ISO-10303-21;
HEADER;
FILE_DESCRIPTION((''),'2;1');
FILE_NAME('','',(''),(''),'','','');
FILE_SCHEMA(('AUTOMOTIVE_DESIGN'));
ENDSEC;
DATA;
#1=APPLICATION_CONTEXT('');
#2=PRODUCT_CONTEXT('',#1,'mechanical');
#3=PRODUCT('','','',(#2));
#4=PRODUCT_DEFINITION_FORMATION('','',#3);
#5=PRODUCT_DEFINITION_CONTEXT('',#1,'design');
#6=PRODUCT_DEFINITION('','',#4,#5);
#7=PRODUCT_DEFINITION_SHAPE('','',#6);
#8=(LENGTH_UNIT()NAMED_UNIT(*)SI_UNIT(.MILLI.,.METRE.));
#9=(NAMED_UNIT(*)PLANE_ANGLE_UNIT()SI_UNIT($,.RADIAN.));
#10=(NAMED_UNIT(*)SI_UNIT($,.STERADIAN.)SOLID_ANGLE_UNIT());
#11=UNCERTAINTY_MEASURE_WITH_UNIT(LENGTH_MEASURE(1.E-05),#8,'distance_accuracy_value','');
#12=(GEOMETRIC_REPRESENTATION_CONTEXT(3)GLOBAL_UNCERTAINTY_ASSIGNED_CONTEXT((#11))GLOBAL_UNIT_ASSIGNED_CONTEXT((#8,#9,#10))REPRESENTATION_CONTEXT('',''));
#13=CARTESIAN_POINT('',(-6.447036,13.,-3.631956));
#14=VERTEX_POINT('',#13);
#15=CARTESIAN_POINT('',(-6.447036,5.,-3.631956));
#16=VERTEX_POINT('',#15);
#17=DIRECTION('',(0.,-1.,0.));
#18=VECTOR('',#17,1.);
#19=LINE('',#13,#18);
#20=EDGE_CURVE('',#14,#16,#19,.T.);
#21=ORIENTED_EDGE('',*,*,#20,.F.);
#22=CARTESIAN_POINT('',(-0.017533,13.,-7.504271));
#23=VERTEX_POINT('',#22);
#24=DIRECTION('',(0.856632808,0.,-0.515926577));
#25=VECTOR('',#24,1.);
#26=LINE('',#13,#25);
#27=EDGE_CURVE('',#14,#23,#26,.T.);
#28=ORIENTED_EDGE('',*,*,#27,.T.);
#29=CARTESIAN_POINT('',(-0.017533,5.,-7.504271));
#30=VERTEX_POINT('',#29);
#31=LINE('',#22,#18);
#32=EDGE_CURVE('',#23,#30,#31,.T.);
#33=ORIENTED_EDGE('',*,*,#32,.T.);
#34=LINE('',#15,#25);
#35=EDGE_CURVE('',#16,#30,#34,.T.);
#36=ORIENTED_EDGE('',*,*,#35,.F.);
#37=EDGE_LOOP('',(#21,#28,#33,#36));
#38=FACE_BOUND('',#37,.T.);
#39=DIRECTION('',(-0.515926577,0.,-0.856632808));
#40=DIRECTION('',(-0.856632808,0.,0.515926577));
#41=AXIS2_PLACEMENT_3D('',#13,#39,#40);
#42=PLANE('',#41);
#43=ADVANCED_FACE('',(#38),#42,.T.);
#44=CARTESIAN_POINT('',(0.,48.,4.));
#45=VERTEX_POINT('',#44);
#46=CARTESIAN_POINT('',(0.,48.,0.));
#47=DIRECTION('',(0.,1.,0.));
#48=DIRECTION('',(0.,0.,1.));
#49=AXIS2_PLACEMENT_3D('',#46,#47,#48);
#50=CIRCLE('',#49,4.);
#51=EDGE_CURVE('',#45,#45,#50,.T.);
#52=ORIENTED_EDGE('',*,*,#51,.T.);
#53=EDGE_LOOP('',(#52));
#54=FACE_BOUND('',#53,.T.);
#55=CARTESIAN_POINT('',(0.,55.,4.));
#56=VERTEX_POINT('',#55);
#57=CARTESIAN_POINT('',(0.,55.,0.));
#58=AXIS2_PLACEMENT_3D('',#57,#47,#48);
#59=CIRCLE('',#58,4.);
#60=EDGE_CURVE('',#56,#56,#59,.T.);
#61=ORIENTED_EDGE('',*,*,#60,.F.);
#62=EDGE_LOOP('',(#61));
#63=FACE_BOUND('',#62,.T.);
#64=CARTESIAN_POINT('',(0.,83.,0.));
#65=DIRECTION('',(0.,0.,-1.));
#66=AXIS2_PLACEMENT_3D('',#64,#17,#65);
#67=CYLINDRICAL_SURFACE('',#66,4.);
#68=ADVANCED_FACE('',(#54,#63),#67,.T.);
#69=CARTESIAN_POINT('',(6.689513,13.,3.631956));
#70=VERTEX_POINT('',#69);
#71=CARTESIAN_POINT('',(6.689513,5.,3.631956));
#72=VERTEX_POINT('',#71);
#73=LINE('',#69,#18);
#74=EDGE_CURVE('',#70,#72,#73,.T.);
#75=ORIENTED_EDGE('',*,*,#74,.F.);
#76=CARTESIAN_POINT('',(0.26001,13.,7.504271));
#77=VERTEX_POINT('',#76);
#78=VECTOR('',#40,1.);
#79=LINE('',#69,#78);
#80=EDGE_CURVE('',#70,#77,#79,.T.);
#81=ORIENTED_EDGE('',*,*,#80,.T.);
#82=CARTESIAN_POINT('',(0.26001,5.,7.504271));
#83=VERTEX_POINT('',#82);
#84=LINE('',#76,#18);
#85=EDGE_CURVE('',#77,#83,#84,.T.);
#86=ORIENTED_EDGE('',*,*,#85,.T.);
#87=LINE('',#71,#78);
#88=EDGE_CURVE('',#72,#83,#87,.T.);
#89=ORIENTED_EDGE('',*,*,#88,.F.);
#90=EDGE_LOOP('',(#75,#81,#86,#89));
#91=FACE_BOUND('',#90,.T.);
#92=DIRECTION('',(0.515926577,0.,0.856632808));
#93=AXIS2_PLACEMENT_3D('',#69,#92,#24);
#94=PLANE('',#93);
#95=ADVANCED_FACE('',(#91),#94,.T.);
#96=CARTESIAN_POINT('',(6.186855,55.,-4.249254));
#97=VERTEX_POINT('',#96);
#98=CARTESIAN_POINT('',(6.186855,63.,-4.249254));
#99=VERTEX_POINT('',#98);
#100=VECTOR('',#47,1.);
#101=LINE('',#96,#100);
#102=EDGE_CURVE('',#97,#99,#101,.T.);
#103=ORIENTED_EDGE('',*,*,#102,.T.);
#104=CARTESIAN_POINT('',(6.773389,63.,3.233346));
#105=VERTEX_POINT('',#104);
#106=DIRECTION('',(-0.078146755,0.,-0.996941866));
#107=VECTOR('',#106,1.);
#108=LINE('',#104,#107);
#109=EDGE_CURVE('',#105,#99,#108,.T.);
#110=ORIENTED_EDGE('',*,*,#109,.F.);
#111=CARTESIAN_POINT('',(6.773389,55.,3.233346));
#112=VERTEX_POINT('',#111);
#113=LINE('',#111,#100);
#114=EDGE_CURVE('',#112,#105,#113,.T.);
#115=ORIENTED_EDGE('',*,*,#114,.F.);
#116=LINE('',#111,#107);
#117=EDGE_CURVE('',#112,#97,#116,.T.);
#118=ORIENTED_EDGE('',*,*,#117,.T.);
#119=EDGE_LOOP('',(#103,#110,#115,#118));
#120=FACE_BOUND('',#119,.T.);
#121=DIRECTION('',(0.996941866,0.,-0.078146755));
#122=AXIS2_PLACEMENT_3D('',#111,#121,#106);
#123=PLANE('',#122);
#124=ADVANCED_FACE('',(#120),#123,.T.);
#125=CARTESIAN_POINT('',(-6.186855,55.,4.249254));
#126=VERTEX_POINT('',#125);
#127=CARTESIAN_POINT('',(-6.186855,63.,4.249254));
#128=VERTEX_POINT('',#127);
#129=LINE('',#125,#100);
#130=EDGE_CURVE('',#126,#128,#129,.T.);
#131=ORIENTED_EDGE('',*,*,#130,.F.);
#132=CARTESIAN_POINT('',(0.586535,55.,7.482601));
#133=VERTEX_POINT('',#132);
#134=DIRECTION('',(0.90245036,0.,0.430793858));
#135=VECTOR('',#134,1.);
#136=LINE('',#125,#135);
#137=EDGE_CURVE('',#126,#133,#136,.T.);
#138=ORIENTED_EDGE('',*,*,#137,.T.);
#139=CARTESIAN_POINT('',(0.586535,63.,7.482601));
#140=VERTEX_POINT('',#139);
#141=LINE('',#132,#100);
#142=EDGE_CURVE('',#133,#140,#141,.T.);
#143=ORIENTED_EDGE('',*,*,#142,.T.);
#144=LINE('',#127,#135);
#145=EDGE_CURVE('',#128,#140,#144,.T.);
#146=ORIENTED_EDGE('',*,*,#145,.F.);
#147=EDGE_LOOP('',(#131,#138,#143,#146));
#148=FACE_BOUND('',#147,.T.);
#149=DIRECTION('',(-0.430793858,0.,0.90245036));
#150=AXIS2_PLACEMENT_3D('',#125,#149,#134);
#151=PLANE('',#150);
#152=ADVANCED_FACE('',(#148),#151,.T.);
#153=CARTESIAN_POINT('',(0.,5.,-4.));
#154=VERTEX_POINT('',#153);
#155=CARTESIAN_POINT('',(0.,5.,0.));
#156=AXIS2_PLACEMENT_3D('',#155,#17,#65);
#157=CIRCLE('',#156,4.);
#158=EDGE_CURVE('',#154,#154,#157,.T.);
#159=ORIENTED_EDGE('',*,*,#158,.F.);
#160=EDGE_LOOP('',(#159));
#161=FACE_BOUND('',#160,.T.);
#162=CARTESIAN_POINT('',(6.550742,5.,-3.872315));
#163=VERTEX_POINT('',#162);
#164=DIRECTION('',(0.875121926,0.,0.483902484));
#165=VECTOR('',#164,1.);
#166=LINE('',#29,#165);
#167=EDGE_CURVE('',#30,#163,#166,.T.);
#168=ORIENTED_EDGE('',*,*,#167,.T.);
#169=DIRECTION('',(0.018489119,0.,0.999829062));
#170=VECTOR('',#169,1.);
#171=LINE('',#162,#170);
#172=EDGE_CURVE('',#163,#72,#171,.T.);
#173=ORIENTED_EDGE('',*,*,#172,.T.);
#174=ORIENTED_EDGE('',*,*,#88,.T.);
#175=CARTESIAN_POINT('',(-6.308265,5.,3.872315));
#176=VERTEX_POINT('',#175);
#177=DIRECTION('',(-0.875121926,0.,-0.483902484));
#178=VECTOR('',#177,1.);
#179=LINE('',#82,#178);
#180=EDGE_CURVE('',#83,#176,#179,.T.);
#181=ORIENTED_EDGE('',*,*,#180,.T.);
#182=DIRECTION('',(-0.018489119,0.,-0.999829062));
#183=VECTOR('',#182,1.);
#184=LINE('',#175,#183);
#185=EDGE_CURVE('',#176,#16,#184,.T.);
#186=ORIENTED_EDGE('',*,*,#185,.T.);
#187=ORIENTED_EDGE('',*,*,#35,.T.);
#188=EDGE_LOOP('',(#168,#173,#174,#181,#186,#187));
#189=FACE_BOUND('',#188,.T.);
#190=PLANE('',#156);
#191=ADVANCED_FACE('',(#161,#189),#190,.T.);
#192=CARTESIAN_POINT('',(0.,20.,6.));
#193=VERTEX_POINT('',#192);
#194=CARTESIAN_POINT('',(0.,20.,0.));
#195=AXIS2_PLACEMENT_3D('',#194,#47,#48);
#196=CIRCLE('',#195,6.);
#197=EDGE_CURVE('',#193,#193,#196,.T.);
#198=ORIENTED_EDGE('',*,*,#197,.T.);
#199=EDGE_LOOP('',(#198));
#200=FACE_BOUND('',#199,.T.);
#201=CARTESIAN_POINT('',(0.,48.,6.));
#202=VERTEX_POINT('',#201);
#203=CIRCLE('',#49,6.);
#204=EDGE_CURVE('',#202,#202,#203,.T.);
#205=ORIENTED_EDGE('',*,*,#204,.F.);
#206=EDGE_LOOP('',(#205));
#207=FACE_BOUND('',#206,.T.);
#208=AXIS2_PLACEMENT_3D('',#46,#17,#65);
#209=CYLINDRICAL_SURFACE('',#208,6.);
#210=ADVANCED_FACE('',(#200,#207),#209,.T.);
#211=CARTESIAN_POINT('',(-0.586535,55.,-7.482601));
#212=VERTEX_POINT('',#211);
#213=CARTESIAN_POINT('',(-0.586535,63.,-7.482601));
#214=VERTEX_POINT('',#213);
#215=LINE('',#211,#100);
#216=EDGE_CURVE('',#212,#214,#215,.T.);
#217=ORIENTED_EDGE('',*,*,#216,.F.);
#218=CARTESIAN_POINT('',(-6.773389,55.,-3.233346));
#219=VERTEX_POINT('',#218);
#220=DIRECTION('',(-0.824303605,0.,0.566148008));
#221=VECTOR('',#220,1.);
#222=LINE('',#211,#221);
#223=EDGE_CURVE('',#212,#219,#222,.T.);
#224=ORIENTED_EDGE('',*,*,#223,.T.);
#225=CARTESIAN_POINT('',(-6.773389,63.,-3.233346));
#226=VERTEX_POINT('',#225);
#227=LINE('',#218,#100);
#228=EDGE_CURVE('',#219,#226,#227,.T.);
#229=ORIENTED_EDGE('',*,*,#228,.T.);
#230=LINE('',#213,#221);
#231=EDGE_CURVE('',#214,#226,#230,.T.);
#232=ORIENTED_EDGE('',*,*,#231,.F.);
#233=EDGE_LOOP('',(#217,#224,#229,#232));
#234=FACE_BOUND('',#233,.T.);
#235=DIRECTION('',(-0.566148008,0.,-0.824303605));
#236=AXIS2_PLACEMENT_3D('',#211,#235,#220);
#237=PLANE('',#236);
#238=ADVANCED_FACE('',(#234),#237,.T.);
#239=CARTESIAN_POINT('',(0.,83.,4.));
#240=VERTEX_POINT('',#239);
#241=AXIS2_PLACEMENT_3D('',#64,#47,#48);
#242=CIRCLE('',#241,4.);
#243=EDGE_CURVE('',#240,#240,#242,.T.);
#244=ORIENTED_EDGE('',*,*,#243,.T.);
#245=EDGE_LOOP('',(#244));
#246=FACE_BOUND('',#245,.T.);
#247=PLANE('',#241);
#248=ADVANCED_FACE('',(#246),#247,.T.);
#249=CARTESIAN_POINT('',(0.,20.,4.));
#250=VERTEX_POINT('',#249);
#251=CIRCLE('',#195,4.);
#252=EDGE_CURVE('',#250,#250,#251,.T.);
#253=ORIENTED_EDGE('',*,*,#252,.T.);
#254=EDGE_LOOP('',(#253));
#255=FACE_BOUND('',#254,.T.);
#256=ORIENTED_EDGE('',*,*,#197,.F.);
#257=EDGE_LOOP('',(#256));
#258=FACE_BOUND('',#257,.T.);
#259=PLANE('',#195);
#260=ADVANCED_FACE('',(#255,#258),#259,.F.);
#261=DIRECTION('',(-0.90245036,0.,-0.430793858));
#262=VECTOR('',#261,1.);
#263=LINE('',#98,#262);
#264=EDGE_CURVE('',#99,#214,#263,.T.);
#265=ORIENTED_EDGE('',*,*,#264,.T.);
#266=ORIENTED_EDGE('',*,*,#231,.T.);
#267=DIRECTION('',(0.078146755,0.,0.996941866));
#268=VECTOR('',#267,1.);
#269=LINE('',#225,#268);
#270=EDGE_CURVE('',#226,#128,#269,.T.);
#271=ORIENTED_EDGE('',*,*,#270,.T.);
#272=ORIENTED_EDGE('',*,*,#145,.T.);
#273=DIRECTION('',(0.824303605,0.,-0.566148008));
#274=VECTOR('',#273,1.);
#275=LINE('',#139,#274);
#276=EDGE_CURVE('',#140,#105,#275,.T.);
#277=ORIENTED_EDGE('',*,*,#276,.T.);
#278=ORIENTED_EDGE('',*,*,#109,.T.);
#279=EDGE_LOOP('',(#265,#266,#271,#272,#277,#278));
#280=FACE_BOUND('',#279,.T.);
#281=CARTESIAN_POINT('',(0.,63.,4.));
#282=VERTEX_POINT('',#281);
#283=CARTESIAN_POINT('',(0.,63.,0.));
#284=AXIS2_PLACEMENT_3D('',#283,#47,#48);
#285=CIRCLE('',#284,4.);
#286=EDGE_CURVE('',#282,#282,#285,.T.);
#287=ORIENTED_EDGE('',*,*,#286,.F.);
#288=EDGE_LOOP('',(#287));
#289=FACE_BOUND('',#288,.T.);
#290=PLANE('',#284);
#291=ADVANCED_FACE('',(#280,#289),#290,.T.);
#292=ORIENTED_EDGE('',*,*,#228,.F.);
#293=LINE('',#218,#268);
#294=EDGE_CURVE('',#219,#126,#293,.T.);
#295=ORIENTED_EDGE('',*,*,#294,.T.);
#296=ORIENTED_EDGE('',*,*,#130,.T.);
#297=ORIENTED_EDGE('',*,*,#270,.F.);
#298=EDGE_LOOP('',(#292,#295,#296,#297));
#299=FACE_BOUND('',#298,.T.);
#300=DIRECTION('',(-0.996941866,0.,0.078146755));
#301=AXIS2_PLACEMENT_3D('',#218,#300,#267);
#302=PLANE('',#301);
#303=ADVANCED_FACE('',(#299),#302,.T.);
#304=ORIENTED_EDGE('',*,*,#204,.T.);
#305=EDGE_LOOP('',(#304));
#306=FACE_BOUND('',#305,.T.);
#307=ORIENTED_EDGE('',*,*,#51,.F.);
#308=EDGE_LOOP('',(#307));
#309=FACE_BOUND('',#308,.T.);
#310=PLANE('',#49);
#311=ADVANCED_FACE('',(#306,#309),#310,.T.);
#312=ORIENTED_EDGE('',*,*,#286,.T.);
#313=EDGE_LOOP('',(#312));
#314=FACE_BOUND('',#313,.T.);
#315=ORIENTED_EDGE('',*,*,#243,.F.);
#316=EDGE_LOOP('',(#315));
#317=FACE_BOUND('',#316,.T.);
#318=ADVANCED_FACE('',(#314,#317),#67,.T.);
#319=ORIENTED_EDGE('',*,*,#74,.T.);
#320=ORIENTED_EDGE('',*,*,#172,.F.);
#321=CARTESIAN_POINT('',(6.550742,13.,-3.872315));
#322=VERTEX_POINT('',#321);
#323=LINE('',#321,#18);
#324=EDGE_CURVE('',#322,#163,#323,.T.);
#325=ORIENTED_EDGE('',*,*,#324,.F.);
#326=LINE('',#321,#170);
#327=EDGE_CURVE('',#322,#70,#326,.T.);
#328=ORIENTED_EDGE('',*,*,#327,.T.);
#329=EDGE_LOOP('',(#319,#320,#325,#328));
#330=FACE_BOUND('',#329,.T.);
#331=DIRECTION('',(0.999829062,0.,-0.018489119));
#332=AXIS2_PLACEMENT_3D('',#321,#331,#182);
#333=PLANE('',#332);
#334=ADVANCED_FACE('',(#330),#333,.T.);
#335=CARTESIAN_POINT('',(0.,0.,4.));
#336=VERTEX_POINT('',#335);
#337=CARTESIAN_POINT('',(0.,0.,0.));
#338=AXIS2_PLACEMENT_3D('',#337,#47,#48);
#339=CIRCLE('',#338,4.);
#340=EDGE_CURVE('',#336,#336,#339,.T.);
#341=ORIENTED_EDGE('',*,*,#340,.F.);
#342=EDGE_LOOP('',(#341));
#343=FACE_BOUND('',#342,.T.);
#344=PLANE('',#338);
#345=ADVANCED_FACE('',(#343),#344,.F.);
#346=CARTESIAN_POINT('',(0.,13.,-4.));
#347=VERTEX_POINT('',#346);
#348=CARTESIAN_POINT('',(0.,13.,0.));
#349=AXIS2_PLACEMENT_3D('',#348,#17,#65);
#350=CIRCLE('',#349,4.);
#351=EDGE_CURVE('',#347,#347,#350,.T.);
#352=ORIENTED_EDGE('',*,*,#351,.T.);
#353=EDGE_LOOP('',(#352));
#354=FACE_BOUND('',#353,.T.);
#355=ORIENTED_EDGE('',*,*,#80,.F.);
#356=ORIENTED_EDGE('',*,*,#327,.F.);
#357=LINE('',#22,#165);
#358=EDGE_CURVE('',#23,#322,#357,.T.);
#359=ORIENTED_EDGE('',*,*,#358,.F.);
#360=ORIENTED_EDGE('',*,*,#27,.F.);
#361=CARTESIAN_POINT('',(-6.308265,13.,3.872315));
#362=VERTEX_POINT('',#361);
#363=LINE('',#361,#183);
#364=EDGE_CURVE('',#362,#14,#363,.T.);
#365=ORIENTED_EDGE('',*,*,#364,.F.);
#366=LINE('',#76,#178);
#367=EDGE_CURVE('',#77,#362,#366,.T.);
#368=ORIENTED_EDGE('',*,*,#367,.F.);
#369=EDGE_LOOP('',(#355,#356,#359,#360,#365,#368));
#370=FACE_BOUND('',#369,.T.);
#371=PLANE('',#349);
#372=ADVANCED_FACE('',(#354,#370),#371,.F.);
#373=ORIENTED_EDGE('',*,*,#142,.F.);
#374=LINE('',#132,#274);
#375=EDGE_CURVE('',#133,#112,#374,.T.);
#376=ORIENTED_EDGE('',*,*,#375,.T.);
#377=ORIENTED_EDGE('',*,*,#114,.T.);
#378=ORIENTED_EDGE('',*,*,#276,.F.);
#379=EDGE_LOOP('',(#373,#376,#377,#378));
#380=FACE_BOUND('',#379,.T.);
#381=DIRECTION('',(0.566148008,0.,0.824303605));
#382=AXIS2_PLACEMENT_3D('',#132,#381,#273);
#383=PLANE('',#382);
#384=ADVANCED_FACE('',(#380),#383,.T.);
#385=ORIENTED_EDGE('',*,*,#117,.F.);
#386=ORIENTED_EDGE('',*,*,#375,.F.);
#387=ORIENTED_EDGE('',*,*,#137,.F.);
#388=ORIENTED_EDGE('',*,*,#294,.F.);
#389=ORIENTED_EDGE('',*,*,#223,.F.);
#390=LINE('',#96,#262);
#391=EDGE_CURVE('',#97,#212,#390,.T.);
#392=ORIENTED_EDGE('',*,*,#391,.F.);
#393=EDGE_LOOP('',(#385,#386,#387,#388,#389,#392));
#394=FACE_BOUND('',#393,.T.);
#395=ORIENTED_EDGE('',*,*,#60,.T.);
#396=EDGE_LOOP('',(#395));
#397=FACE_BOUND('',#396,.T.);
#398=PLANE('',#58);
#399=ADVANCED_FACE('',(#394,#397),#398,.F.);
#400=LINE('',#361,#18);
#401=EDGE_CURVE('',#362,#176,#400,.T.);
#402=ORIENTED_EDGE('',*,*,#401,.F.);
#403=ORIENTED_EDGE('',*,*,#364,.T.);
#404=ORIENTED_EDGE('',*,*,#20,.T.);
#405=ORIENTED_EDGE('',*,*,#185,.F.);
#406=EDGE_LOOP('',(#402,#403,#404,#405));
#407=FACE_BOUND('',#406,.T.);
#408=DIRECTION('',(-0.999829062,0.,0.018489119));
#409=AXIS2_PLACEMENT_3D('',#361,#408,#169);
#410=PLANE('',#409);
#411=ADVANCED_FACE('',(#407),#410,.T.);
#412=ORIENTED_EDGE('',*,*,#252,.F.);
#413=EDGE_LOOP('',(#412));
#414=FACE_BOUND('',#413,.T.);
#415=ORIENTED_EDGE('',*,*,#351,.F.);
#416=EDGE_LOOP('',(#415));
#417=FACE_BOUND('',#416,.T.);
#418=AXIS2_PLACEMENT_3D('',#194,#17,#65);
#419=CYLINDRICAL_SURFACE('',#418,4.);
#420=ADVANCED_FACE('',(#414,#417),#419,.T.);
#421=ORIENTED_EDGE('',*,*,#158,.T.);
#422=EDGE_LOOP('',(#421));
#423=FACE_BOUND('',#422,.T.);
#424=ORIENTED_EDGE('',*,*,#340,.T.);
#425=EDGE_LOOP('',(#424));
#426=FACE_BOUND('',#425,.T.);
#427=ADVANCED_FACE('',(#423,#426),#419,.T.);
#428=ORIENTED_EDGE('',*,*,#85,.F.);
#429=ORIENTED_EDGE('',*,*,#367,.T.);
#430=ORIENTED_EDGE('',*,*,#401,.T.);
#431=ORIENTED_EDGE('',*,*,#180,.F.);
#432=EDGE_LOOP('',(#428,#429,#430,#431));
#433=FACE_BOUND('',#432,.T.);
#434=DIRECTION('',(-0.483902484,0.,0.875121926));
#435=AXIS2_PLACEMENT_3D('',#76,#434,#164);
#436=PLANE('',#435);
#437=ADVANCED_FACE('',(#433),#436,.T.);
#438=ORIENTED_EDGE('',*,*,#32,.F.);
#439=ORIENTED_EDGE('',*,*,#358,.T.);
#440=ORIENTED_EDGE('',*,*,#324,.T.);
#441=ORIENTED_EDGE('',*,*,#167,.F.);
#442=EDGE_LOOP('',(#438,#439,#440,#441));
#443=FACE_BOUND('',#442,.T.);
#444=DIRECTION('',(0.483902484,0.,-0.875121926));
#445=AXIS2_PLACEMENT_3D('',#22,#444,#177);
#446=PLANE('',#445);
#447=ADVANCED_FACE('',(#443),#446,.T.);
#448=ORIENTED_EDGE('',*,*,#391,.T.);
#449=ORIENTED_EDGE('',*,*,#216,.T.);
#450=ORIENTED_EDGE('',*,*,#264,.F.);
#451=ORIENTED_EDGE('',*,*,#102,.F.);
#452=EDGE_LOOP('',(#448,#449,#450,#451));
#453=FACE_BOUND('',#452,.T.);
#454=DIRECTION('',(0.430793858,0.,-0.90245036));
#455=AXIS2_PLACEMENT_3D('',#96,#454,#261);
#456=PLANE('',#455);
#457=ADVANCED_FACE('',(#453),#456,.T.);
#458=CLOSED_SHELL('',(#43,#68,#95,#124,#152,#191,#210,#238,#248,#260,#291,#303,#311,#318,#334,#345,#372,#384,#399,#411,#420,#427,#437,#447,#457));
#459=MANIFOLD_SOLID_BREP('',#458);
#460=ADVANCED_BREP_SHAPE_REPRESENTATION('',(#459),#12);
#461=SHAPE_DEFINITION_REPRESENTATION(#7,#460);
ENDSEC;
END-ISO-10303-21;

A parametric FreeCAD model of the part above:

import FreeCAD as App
import Part
import Sketcher

V = App.Vector
Q = App.Units.Quantity


def add_polygon(sketch, points):
    """Adds a closed chain of lines whose ends are joined by coincident constraints."""
    first, n = sketch.GeometryCount, len(points)
    for a, b in zip(points, points[1:] + points[:1]):
        sketch.addGeometry(Part.LineSegment(App.Vector(*a, 0), App.Vector(*b, 0)), False)
    for i in range(n):
        sketch.addConstraint(Sketcher.Constraint("Coincident", first + i, 2, first + (i + 1) % n, 1))

doc = App.newDocument("Part")
body = doc.addObject("PartDesign::Body", "Body")

sketch1 = body.newObject("Sketcher::SketchObject", "Sketch")
sketch1.AttachmentSupport = (doc.getObject("XZ_Plane"), [""])
sketch1.MapMode = "FlatFace"
sketch1.addGeometry(Part.Circle(V(0, 0, 0), V(0, 0, 1), 4), False)
sketch1.addConstraint([
    Sketcher.Constraint("Coincident", 0, 3, -1, 1),
    Sketcher.Constraint("Diameter", 0, Q("8 mm")),
])
pad1 = body.newObject("PartDesign::Pad", "Pad")
pad1.Profile = sketch1
pad1.Length = 20
pad1.Reversed = True

sketch2 = body.newObject("Sketcher::SketchObject", "Sketch001")
sketch2.AttachmentSupport = (doc.getObject("XZ_Plane"), [""])
sketch2.MapMode = "FlatFace"
sketch2.AttachmentOffset = App.Placement(V(0, 0, -20), App.Rotation())
sketch2.addGeometry(Part.Circle(V(0, 0, 0), V(0, 0, 1), 6), False)
sketch2.addConstraint([
    Sketcher.Constraint("Coincident", 0, 3, -1, 1),
    Sketcher.Constraint("Diameter", 0, Q("12 mm")),
])
pad2 = body.newObject("PartDesign::Pad", "Pad001")
pad2.Profile = sketch2
pad2.Length = 28
pad2.Reversed = True

sketch3 = body.newObject("Sketcher::SketchObject", "Sketch002")
sketch3.AttachmentSupport = (doc.getObject("XZ_Plane"), [""])
sketch3.MapMode = "FlatFace"
sketch3.AttachmentOffset = App.Placement(V(0, 0, -48), App.Rotation())
sketch3.addGeometry(Part.Circle(V(0, 0, 0), V(0, 0, 1), 4), False)
sketch3.addConstraint([
    Sketcher.Constraint("Coincident", 0, 3, -1, 1),
    Sketcher.Constraint("Diameter", 0, Q("8 mm")),
])
pad3 = body.newObject("PartDesign::Pad", "Pad002")
pad3.Profile = sketch3
pad3.Length = 35
pad3.Reversed = True

sketch4 = body.newObject("Sketcher::SketchObject", "Sketch003")
sketch4.AttachmentSupport = (doc.getObject("XZ_Plane"), [""])
sketch4.MapMode = "FlatFace"
sketch4.AttachmentOffset = App.Placement(V(0, 0, -5), App.Rotation())
add_polygon(sketch4, [(-6, 4), (-6, -4), (0, -8), (7, -4), (7, 4), (0, 8)])
sketch4.addConstraint([
    Sketcher.Constraint("Parallel", 0, 3),
    Sketcher.Constraint("Parallel", 1, 4),
    Sketcher.Constraint("Parallel", 2, 5),
    Sketcher.Constraint("Equal", 0, 1),
    Sketcher.Constraint("Equal", 1, 2),
    Sketcher.Constraint("Equal", 2, 3),
    Sketcher.Constraint("DistanceY", 1, 2, -1, 1, Q("7.504271 mm")),
    Sketcher.Constraint("DistanceX", -1, 1, 2, 2, Q("6.550742 mm")),
    Sketcher.Constraint("DistanceX", -1, 1, 4, 2, Q("0.26001 mm")),
    Sketcher.Constraint("DistanceY", -1, 1, 4, 2, Q("7.504271 mm")),
    Sketcher.Constraint("DistanceY", 2, 2, 0, 2, Q("0.240359 mm")),
    Sketcher.Constraint("DistanceX", 2, 2, 3, 2, Q("0.138771 mm")),
])
pad4 = body.newObject("PartDesign::Pad", "Pad003")
pad4.Profile = sketch4
pad4.Length = 8
pad4.Reversed = True

sketch5 = body.newObject("Sketcher::SketchObject", "Sketch004")
sketch5.AttachmentSupport = (doc.getObject("XZ_Plane"), [""])
sketch5.MapMode = "FlatFace"
sketch5.AttachmentOffset = App.Placement(V(0, 0, -63), App.Rotation())
add_polygon(sketch5, [(7, 3), (6, -4), (-1, -7), (-7, -3), (-6, 4), (1, 7)])
sketch5.addConstraint([
    Sketcher.Constraint("Symmetric", 0, 2, 3, 2, -1, 1),
    Sketcher.Constraint("Symmetric", 1, 2, 4, 2, -1, 1),
    Sketcher.Constraint("Symmetric", 2, 2, 5, 2, -1, 1),
    Sketcher.Constraint("Equal", 0, 1),
    Sketcher.Constraint("Equal", 1, 2),
    Sketcher.Constraint("DistanceY", 1, 2, -1, 1, Q("7.482601 mm")),
    Sketcher.Constraint("DistanceY", 2, 2, 3, 2, Q("7.482601 mm")),
    Sketcher.Constraint("DistanceX", 2, 2, -1, 1, Q("6.773389 mm")),
    Sketcher.Constraint("DistanceX", 1, 2, 0, 2, Q("6.773389 mm")),
])
pad5 = body.newObject("PartDesign::Pad", "Pad004")
pad5.Profile = sketch5
pad5.Length = 8

doc.recompute()
